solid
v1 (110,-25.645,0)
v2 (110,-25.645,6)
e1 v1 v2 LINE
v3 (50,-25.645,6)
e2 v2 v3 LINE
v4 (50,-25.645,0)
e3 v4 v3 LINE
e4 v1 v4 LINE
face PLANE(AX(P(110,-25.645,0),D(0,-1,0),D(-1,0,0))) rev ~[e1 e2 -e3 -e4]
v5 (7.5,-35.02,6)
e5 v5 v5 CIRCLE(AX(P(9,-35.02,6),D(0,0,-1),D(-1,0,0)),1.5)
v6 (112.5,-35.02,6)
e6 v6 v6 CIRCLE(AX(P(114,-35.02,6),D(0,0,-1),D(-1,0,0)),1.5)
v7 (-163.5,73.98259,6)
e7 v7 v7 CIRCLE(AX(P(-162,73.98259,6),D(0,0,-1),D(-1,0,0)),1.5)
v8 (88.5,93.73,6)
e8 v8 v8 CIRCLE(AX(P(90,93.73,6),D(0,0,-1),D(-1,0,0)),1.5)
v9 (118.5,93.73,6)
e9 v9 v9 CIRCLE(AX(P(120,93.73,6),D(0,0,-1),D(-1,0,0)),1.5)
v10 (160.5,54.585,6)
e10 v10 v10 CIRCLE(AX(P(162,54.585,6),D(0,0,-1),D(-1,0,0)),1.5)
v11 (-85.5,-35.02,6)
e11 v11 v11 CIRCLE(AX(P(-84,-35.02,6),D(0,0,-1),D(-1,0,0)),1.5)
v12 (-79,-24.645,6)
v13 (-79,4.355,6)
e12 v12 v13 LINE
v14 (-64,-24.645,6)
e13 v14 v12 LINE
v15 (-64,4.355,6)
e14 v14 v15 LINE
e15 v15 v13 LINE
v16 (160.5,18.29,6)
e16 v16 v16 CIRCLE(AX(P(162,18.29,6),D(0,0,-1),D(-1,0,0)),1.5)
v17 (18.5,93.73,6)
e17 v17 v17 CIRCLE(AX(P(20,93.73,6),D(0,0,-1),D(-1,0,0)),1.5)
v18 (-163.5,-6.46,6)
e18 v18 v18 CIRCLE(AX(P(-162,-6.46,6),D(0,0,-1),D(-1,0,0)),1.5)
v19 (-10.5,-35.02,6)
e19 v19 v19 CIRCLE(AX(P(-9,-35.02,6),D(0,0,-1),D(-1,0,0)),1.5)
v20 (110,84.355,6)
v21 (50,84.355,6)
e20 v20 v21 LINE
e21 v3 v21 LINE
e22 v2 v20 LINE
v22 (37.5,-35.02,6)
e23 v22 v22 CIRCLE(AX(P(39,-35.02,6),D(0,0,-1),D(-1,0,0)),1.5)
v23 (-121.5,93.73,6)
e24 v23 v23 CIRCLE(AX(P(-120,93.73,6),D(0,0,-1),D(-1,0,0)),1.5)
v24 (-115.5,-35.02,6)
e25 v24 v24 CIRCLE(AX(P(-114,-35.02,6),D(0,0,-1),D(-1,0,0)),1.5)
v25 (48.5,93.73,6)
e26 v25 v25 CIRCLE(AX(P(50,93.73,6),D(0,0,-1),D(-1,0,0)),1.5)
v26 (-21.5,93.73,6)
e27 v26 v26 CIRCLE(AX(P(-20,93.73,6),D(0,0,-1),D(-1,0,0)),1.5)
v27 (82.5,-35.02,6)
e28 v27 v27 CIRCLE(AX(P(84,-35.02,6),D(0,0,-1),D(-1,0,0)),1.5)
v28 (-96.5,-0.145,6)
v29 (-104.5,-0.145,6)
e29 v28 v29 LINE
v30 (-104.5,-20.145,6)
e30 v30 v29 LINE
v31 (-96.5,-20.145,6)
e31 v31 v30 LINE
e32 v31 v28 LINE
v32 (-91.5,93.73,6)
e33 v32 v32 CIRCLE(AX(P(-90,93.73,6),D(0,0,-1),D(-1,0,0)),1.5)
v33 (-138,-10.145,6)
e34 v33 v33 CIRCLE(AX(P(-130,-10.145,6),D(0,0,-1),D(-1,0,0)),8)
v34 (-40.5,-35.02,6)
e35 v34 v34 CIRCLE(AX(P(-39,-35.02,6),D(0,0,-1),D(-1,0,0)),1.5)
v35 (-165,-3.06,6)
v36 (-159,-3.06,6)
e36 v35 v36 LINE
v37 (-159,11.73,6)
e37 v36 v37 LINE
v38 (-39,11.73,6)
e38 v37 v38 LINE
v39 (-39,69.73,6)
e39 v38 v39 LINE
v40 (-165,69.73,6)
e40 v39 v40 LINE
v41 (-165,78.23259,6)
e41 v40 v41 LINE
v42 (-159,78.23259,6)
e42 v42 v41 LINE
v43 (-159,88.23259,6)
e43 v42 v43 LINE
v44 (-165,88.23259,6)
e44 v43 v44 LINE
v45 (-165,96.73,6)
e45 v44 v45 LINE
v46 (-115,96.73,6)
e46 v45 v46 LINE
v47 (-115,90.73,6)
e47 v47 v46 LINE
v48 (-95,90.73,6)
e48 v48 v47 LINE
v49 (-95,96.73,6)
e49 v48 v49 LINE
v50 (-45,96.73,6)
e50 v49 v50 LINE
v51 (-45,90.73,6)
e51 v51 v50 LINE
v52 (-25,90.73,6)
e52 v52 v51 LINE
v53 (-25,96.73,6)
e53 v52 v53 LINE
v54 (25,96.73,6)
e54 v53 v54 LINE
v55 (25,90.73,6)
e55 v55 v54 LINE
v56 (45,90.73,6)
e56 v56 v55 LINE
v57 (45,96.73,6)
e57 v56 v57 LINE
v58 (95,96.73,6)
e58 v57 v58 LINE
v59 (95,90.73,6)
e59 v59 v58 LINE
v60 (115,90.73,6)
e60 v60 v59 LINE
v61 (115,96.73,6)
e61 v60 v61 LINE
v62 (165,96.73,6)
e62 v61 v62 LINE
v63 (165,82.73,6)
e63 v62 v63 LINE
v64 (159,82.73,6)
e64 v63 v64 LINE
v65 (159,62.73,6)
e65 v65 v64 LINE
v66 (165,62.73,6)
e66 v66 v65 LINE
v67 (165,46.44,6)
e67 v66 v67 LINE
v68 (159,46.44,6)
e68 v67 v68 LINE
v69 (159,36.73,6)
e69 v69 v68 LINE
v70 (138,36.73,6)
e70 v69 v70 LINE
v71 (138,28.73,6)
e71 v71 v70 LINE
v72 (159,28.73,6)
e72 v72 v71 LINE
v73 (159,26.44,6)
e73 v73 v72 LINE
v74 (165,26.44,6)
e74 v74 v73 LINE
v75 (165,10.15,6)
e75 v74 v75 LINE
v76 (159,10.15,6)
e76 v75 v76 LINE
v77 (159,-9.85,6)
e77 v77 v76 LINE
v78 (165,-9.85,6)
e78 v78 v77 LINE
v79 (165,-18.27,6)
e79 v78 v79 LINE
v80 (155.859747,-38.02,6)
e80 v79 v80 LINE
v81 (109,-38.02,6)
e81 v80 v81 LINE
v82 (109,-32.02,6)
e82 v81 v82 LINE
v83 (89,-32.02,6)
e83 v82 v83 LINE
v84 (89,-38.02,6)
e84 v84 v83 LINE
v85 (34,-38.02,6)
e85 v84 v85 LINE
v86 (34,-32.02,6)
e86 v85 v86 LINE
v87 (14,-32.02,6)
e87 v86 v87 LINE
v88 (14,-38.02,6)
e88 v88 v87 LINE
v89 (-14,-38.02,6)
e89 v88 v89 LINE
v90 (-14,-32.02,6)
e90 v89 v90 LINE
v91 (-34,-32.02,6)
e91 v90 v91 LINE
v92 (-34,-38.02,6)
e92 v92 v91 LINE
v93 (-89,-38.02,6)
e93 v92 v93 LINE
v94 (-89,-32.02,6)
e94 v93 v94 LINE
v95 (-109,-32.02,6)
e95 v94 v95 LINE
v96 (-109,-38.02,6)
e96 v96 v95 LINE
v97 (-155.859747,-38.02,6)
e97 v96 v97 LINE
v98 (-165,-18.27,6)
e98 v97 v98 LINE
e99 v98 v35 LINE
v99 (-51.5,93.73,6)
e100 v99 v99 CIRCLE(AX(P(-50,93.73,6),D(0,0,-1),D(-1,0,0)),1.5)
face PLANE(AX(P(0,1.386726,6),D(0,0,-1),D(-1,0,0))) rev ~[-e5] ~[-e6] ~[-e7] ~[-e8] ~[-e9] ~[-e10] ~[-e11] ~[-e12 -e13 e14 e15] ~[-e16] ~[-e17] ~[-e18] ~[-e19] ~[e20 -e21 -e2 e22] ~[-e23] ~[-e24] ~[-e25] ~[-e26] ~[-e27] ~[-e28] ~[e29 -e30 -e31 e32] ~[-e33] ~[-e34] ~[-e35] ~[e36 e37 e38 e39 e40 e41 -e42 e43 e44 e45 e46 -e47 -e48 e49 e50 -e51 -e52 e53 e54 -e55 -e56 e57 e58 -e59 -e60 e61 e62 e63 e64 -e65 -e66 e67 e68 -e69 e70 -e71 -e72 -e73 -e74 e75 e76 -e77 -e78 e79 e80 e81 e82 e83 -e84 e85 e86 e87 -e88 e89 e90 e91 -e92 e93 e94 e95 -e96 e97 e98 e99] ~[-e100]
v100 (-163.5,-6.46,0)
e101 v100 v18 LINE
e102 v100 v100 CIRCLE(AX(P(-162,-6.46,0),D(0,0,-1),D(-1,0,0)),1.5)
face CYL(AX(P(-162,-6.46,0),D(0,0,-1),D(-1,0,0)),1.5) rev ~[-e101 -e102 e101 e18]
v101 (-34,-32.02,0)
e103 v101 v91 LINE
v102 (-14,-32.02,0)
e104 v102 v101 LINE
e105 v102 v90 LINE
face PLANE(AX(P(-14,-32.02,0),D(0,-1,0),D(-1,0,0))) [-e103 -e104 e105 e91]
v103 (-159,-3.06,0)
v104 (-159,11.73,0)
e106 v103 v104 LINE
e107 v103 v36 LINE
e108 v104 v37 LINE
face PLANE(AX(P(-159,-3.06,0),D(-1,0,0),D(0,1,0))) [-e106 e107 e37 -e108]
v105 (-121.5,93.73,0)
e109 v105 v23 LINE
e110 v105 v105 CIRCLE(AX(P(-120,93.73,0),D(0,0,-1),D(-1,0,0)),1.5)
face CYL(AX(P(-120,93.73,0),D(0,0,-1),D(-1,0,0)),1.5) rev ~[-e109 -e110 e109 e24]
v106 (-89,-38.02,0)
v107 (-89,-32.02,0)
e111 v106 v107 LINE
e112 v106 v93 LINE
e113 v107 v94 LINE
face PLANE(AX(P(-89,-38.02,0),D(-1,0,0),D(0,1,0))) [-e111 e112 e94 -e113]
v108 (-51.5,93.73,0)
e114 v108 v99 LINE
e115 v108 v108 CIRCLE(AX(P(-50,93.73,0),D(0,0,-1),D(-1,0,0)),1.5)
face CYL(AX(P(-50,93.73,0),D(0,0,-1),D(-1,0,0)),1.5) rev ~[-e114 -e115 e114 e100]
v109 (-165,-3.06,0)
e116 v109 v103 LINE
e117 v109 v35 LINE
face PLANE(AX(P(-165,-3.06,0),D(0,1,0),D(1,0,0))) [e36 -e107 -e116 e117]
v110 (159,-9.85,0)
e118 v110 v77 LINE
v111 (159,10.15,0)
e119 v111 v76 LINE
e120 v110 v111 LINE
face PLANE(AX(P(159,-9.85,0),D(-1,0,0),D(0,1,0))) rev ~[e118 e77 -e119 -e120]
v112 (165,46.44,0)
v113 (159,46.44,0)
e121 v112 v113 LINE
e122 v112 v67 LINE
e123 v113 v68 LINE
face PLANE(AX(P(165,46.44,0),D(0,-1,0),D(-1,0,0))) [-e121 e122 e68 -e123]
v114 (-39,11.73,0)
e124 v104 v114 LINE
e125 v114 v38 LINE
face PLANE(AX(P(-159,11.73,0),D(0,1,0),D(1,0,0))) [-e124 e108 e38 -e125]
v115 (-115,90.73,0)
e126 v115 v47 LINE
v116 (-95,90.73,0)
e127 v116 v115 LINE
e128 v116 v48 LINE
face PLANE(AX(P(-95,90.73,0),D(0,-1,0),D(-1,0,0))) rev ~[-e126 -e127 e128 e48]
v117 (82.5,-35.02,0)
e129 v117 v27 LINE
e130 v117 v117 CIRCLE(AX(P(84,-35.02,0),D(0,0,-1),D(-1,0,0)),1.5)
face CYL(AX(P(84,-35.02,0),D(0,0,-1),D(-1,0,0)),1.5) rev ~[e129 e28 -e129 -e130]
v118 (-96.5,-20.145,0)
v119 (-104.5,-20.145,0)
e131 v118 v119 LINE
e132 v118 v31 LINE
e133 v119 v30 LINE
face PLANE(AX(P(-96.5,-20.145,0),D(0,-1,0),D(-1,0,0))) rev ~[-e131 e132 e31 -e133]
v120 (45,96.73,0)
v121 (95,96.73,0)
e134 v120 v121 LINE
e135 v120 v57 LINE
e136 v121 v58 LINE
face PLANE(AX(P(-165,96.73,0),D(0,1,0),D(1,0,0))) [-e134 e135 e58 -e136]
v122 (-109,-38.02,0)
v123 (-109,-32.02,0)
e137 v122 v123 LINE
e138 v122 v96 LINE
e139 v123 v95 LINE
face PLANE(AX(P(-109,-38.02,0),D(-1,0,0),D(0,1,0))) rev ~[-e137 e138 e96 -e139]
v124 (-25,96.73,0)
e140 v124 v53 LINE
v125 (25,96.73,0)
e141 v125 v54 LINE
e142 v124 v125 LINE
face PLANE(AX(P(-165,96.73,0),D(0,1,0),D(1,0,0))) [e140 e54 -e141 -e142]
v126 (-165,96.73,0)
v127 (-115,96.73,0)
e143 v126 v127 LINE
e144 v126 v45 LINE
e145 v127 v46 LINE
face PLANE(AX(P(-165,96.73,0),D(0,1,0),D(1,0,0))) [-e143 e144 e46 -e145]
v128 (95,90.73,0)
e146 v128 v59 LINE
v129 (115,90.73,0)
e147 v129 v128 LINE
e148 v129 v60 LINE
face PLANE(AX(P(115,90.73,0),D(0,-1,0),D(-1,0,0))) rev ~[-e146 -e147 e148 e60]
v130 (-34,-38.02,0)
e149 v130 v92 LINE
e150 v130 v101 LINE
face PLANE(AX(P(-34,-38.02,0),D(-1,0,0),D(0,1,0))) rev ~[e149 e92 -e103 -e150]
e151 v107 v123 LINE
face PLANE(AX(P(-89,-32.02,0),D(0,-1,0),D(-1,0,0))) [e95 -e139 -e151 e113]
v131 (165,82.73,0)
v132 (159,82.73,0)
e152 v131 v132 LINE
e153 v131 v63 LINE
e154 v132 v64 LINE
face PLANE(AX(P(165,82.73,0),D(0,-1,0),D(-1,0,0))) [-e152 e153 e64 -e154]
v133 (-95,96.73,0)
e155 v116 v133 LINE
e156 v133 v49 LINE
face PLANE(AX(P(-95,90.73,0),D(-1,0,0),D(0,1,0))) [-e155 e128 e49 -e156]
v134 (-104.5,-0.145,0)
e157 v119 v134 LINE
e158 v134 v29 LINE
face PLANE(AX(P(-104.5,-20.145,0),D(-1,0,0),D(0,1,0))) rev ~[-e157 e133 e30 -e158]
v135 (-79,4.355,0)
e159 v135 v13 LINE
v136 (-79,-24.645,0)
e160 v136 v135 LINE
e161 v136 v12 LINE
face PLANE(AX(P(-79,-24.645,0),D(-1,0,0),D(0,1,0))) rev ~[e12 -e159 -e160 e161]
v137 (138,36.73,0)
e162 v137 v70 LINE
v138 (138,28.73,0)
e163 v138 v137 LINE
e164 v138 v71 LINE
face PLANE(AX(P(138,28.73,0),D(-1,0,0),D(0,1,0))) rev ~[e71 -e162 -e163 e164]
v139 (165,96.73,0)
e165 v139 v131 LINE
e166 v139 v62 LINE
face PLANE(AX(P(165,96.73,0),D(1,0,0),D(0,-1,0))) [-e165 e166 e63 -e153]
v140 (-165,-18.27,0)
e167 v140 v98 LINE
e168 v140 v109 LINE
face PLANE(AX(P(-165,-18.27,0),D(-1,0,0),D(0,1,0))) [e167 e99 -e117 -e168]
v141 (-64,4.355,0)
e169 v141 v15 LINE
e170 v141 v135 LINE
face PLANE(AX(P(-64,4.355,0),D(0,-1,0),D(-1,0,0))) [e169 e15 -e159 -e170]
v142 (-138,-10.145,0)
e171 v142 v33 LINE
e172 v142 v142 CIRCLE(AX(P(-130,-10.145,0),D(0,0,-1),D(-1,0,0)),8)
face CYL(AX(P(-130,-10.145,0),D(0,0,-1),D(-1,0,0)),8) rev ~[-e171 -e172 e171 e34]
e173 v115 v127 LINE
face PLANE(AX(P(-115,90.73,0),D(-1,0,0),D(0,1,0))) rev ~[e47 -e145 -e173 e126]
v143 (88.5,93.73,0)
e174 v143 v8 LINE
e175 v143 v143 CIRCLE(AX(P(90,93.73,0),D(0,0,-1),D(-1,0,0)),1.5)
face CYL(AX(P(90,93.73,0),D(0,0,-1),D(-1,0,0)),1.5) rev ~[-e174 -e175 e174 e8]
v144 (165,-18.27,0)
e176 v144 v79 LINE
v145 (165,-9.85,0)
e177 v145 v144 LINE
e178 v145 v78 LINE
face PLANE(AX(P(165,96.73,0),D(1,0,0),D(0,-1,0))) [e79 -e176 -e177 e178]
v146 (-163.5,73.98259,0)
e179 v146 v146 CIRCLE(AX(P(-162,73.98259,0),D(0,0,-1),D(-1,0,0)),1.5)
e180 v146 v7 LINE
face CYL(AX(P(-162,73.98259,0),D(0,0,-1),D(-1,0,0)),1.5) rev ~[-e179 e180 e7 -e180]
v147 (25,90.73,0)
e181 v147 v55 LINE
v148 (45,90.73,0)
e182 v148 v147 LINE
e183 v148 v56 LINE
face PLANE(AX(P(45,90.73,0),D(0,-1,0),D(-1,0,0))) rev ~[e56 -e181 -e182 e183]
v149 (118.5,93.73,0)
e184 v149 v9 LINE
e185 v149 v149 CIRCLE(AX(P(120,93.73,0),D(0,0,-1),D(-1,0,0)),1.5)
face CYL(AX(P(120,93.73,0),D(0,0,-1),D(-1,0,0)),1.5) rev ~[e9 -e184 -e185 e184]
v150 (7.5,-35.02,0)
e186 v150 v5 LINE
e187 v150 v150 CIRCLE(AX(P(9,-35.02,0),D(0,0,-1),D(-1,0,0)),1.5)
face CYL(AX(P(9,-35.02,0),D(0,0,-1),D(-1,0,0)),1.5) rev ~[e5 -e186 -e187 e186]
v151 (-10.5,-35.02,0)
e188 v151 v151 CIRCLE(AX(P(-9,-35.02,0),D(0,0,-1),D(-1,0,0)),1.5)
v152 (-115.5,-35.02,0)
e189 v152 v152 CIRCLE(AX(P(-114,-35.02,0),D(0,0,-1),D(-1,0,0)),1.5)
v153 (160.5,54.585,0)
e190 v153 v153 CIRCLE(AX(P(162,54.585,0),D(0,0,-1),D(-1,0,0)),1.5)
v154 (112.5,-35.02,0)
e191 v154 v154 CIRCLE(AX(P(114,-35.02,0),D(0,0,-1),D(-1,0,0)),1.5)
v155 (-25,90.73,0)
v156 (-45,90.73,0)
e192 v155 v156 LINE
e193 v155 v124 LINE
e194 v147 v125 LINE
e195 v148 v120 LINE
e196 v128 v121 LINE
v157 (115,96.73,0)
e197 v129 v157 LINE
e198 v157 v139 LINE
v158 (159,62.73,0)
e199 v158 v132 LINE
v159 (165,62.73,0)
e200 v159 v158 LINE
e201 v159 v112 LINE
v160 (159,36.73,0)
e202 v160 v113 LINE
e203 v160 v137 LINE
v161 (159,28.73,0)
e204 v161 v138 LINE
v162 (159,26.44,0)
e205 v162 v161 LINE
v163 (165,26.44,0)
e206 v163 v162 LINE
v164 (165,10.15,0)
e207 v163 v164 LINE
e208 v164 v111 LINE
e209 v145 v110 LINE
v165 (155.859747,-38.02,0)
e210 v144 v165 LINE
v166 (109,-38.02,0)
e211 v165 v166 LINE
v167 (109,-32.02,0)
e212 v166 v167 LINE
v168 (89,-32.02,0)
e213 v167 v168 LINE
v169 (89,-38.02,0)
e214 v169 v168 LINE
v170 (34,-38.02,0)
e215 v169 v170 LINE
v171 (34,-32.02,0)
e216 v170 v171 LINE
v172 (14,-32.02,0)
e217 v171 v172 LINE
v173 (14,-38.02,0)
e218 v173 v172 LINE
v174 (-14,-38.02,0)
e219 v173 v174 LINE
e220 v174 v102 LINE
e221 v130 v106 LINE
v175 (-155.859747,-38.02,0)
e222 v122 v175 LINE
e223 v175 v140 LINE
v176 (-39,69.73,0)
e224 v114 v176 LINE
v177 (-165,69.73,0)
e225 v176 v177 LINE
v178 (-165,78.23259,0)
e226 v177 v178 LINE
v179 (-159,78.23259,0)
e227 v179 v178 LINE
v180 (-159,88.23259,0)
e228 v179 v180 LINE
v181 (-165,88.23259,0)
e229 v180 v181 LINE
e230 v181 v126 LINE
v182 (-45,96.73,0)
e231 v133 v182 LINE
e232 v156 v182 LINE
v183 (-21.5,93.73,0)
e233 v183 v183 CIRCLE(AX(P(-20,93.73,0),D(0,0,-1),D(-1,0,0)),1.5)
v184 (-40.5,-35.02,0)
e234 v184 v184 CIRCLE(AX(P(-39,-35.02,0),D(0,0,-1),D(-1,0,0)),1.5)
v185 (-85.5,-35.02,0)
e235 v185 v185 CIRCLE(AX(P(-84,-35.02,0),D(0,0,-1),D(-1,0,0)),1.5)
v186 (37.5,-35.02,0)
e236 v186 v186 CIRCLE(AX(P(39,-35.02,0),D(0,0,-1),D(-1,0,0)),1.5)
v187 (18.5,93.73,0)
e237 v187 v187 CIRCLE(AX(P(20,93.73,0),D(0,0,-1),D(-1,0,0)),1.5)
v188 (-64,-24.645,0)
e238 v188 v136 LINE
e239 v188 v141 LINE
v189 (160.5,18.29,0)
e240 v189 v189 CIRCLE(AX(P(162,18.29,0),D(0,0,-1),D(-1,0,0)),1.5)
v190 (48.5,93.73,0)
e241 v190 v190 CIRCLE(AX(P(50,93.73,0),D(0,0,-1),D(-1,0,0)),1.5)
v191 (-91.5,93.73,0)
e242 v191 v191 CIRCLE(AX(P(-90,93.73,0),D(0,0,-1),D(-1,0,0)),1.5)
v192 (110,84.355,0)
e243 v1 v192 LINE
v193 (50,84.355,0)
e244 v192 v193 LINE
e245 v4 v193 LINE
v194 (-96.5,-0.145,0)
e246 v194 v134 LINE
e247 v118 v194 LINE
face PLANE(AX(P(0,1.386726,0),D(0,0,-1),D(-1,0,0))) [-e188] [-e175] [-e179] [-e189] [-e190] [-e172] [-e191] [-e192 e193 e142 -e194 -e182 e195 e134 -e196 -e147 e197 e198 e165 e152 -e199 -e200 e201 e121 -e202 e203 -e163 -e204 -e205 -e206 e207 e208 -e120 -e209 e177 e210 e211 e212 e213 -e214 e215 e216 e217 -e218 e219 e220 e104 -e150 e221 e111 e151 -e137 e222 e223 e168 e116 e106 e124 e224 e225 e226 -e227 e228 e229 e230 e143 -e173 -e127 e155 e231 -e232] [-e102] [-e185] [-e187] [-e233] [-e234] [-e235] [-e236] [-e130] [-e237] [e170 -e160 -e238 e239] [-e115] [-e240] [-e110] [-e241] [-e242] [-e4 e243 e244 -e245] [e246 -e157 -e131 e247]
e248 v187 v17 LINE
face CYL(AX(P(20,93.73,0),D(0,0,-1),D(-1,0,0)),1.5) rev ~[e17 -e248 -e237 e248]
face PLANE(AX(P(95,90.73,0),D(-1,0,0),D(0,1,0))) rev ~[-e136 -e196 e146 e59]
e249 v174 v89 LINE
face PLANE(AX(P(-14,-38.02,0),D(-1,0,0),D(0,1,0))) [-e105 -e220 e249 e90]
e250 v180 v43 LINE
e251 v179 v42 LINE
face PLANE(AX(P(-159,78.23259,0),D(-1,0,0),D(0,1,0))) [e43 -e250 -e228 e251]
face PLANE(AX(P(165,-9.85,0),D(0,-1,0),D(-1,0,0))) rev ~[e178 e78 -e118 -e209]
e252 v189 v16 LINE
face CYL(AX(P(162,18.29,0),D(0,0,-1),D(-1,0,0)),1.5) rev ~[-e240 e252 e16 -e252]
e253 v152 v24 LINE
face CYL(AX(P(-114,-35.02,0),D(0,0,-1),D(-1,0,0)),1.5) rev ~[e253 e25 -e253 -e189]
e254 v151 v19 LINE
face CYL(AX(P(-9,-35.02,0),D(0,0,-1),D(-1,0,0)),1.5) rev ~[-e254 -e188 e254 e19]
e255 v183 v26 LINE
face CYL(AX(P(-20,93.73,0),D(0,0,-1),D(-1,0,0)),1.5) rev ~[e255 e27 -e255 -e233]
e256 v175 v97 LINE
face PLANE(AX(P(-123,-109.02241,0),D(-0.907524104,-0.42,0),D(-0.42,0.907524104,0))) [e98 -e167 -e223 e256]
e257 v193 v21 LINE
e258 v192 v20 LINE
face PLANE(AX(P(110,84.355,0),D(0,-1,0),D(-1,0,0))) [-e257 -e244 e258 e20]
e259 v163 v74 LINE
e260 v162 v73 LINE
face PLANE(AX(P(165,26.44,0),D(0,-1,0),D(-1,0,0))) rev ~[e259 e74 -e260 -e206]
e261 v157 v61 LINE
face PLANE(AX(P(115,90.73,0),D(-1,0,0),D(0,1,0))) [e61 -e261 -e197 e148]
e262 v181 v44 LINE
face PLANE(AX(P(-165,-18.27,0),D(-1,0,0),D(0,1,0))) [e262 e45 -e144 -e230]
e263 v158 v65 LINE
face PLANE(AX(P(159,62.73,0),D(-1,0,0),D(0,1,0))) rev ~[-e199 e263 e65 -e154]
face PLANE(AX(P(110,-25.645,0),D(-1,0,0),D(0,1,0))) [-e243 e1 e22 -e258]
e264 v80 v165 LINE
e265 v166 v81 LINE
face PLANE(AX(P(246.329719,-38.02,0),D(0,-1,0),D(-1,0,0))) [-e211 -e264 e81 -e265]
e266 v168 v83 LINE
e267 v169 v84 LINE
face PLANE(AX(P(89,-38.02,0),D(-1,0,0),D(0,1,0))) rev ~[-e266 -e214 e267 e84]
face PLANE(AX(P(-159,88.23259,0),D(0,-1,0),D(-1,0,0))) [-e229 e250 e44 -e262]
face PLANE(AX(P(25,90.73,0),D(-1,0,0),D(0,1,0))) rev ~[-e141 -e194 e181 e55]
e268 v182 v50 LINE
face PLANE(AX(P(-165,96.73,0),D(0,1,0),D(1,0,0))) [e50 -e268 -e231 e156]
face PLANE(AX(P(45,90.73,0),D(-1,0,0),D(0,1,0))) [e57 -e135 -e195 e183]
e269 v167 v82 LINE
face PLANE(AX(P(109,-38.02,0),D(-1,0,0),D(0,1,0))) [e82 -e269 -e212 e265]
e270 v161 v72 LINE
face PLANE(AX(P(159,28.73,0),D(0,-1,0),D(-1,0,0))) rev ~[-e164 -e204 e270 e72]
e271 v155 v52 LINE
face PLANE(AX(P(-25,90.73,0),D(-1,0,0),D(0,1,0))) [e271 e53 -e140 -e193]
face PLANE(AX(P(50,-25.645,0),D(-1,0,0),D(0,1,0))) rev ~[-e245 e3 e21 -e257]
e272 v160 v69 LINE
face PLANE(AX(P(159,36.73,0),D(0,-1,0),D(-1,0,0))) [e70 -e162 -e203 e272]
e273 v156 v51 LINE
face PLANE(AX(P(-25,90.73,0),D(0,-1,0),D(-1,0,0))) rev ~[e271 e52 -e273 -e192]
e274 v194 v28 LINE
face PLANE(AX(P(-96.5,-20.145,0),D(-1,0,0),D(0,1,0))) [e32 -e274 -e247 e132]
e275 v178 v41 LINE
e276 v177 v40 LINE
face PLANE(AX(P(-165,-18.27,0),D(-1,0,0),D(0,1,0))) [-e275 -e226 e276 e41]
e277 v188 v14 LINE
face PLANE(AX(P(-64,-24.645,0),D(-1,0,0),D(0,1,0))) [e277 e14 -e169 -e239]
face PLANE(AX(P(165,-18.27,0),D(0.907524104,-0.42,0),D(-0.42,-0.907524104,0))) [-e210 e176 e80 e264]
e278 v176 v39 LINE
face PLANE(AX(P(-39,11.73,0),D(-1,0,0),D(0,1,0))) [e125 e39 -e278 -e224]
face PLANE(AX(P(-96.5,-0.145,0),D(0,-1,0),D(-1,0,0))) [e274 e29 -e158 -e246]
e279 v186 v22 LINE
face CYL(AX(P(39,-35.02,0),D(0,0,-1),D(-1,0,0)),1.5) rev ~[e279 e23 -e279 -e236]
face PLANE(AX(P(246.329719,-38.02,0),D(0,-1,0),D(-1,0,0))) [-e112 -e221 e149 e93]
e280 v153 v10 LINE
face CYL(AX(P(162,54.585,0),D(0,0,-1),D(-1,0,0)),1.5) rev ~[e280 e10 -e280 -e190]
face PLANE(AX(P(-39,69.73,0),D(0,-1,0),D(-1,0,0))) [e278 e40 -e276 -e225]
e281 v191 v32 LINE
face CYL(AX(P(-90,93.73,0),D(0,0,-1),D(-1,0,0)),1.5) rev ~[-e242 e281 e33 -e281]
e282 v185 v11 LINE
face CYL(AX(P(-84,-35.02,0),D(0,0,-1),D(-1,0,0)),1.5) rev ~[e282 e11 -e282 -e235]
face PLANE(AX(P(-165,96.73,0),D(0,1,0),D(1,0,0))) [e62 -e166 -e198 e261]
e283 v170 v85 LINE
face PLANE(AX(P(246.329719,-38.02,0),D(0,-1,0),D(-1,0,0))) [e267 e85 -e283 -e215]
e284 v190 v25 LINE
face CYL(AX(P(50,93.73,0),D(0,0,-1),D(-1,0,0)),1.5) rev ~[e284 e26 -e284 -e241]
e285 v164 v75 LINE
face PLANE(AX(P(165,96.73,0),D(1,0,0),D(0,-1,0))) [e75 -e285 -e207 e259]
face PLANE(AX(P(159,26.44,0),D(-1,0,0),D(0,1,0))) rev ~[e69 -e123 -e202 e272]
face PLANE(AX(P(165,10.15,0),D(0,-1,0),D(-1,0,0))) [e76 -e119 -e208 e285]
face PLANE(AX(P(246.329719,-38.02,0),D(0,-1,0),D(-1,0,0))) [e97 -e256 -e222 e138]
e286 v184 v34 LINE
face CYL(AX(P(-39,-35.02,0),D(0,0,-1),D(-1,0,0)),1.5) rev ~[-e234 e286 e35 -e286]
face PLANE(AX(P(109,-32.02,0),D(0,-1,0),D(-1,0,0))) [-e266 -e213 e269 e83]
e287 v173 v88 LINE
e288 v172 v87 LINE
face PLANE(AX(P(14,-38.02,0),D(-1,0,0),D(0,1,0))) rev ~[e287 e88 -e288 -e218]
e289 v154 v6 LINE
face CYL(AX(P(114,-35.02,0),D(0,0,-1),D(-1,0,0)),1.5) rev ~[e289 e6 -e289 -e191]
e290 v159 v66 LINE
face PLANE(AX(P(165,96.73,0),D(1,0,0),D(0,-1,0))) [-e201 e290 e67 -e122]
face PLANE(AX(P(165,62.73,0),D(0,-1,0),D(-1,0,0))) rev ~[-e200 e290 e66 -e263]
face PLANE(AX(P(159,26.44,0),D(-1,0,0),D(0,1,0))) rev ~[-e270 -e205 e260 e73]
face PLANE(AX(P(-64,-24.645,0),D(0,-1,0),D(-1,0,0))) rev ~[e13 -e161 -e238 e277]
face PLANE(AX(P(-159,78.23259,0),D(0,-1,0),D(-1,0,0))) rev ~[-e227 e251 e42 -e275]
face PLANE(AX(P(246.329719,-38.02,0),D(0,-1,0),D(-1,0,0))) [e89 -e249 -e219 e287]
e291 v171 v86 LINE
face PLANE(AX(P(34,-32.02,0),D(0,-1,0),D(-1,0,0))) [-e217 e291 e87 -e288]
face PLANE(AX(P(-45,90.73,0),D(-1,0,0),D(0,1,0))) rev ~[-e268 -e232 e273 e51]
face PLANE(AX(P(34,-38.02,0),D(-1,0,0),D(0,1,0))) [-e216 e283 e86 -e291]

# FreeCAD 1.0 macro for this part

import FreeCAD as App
import Part
import Sketcher
from FreeCAD import Vector
Q = App.Units.Quantity

doc = App.newDocument("Part")
body = doc.addObject("PartDesign::Body", "Body")

sketch1 = doc.addObject("Sketcher::SketchObject", "Sketch")
body.addObject(sketch1)
sketch1.AttachmentSupport = (doc.XY_Plane, [""])
sketch1.MapMode = "FlatFace"
sketch1.addGeometry([
    Part.LineSegment(Vector(165, 96.73, 0), Vector(-165, 96.73, 0)),
    Part.LineSegment(Vector(-165, 96.73, 0), Vector(-165, -18.27, 0)),
    Part.LineSegment(Vector(-165, -18.27, 0), Vector(-123, -109.02241, 0)),
    Part.LineSegment(Vector(-123, -109.02241, 0), Vector(123, -109.02241, 0)),
    Part.LineSegment(Vector(123, -109.02241, 0), Vector(165, -18.27, 0)),
    Part.LineSegment(Vector(165, -18.27, 0), Vector(165, 96.73, 0)),
], False)
sketch1.addConstraint([
    Sketcher.Constraint("Coincident", 0, 2, 1, 1),
    Sketcher.Constraint("Coincident", 1, 2, 2, 1),
    Sketcher.Constraint("Coincident", 2, 2, 3, 1),
    Sketcher.Constraint("Coincident", 3, 2, 4, 1),
    Sketcher.Constraint("Coincident", 4, 2, 5, 1),
    Sketcher.Constraint("Coincident", 5, 2, 0, 1),
    Sketcher.Constraint("Horizontal", 0),
    Sketcher.Constraint("Vertical", 1),
    Sketcher.Constraint("Horizontal", 3),
    Sketcher.Constraint("Vertical", 5),
    Sketcher.Constraint("Symmetric", 1, 2, 4, 2, -2),
    Sketcher.Constraint("Equal", 2, 4),
    Sketcher.Constraint("DistanceX", 0, 2, 0, 1, Q("330 mm")),
    Sketcher.Constraint("DistanceX", 3, 1, 3, 2, Q("246 mm")),
    Sketcher.Constraint("DistanceY", 1, 2, 1, 1, Q("115 mm")),
    Sketcher.Constraint("Distance", 2, Q("100 mm")),
    Sketcher.Constraint("DistanceY", -1, 1, 0, 2, Q("96.73 mm")),
])
pad1 = doc.addObject("PartDesign::Pad", "Pad")
body.addObject(pad1)
pad1.Profile = sketch1
pad1.Length = 6

sketch2 = doc.addObject("Sketcher::SketchObject", "Sketch001")
body.addObject(sketch2)
sketch2.AttachmentSupport = (doc.XY_Plane, [""])
sketch2.MapMode = "FlatFace"
sketch2.addGeometry([
    Part.Circle(Vector(-130, -10.145, 0), Vector(0, 0, 1), 8),
    Part.LineSegment(Vector(-159, -3.06, 0), Vector(-165, -3.06, 0)),
    Part.LineSegment(Vector(-165, -3.06, 0), Vector(-165, 69.73, 0)),
    Part.LineSegment(Vector(-165, 69.73, 0), Vector(-39, 69.73, 0)),
    Part.LineSegment(Vector(-39, 69.73, 0), Vector(-39, 11.73, 0)),
    Part.LineSegment(Vector(-39, 11.73, 0), Vector(-159, 11.73, 0)),
    Part.LineSegment(Vector(-159, 11.73, 0), Vector(-159, -3.06, 0)),
    Part.LineSegment(Vector(-159, 88.23259, 0), Vector(-159, 78.23259, 0)),
    Part.LineSegment(Vector(-159, 78.23259, 0), Vector(-165, 78.23259, 0)),
    Part.LineSegment(Vector(-165, 78.23259, 0), Vector(-165, 88.23259, 0)),
    Part.LineSegment(Vector(-165, 88.23259, 0), Vector(-159, 88.23259, 0)),
    Part.LineSegment(Vector(34, -32.02, 0), Vector(34, -38.02, 0)),
    Part.LineSegment(Vector(34, -38.02, 0), Vector(14, -38.02, 0)),
    Part.LineSegment(Vector(14, -38.02, 0), Vector(14, -32.02, 0)),
    Part.LineSegment(Vector(14, -32.02, 0), Vector(34, -32.02, 0)),
    Part.LineSegment(Vector(-89, -32.02, 0), Vector(-89, -38.02, 0)),
    Part.LineSegment(Vector(-89, -38.02, 0), Vector(-109, -38.02, 0)),
    Part.LineSegment(Vector(-109, -38.02, 0), Vector(-109, -32.02, 0)),
    Part.LineSegment(Vector(-109, -32.02, 0), Vector(-89, -32.02, 0)),
    Part.LineSegment(Vector(110, 84.355, 0), Vector(110, -25.645, 0)),
    Part.LineSegment(Vector(110, -25.645, 0), Vector(50, -25.645, 0)),
    Part.LineSegment(Vector(50, -25.645, 0), Vector(50, 84.355, 0)),
    Part.LineSegment(Vector(50, 84.355, 0), Vector(110, 84.355, 0)),
    Part.LineSegment(Vector(165, 82.73, 0), Vector(165, 62.73, 0)),
    Part.LineSegment(Vector(165, 62.73, 0), Vector(159, 62.73, 0)),
    Part.LineSegment(Vector(159, 62.73, 0), Vector(159, 82.73, 0)),
    Part.LineSegment(Vector(159, 82.73, 0), Vector(165, 82.73, 0)),
    Part.LineSegment(Vector(-14, -32.02, 0), Vector(-14, -38.02, 0)),
    Part.LineSegment(Vector(-14, -38.02, 0), Vector(-34, -38.02, 0)),
    Part.LineSegment(Vector(-34, -38.02, 0), Vector(-34, -32.02, 0)),
    Part.LineSegment(Vector(-34, -32.02, 0), Vector(-14, -32.02, 0)),
    Part.LineSegment(Vector(165, 46.44, 0), Vector(165, 26.44, 0)),
    Part.LineSegment(Vector(165, 26.44, 0), Vector(159, 26.44, 0)),
    Part.LineSegment(Vector(159, 26.44, 0), Vector(159, 46.44, 0)),
    Part.LineSegment(Vector(159, 46.44, 0), Vector(165, 46.44, 0)),
    Part.LineSegment(Vector(165, 10.15, 0), Vector(165, -9.85, 0)),
    Part.LineSegment(Vector(165, -9.85, 0), Vector(159, -9.85, 0)),
    Part.LineSegment(Vector(159, -9.85, 0), Vector(159, 10.15, 0)),
    Part.LineSegment(Vector(159, 10.15, 0), Vector(165, 10.15, 0)),
    Part.LineSegment(Vector(-95, 96.73, 0), Vector(-95, 90.73, 0)),
    Part.LineSegment(Vector(-95, 90.73, 0), Vector(-115, 90.73, 0)),
    Part.LineSegment(Vector(-115, 90.73, 0), Vector(-115, 96.73, 0)),
    Part.LineSegment(Vector(-115, 96.73, 0), Vector(-95, 96.73, 0)),
    Part.LineSegment(Vector(45, 96.73, 0), Vector(45, 90.73, 0)),
    Part.LineSegment(Vector(45, 90.73, 0), Vector(25, 90.73, 0)),
    Part.LineSegment(Vector(25, 90.73, 0), Vector(25, 96.73, 0)),
    Part.LineSegment(Vector(25, 96.73, 0), Vector(45, 96.73, 0)),
    Part.LineSegment(Vector(-25, 96.73, 0), Vector(-25, 90.73, 0)),
    Part.LineSegment(Vector(-25, 90.73, 0), Vector(-45, 90.73, 0)),
    Part.LineSegment(Vector(-45, 90.73, 0), Vector(-45, 96.73, 0)),
    Part.LineSegment(Vector(-45, 96.73, 0), Vector(-25, 96.73, 0)),
    Part.LineSegment(Vector(115, 96.73, 0), Vector(115, 90.73, 0)),
    Part.LineSegment(Vector(115, 90.73, 0), Vector(95, 90.73, 0)),
    Part.LineSegment(Vector(95, 90.73, 0), Vector(95, 96.73, 0)),
    Part.LineSegment(Vector(95, 96.73, 0), Vector(115, 96.73, 0)),
    Part.LineSegment(Vector(-96.5, -0.145, 0), Vector(-96.5, -20.145, 0)),
    Part.LineSegment(Vector(-96.5, -20.145, 0), Vector(-104.5, -20.145, 0)),
    Part.LineSegment(Vector(-104.5, -20.145, 0), Vector(-104.5, -0.145, 0)),
    Part.LineSegment(Vector(-104.5, -0.145, 0), Vector(-96.5, -0.145, 0)),
    Part.LineSegment(Vector(109, -32.02, 0), Vector(109, -38.02, 0)),
    Part.LineSegment(Vector(109, -38.02, 0), Vector(89, -38.02, 0)),
    Part.LineSegment(Vector(89, -38.02, 0), Vector(89, -32.02, 0)),
    Part.LineSegment(Vector(89, -32.02, 0), Vector(109, -32.02, 0)),
    Part.LineSegment(Vector(-64, 4.355, 0), Vector(-64, -24.645, 0)),
    Part.LineSegment(Vector(-64, -24.645, 0), Vector(-79, -24.645, 0)),
    Part.LineSegment(Vector(-79, -24.645, 0), Vector(-79, 4.355, 0)),
    Part.LineSegment(Vector(-79, 4.355, 0), Vector(-64, 4.355, 0)),
], False)
sketch2.addConstraint([
    Sketcher.Constraint("Coincident", 1, 2, 2, 1),
    Sketcher.Constraint("Coincident", 2, 2, 3, 1),
    Sketcher.Constraint("Coincident", 3, 2, 4, 1),
    Sketcher.Constraint("Coincident", 4, 2, 5, 1),
    Sketcher.Constraint("Coincident", 5, 2, 6, 1),
    Sketcher.Constraint("Coincident", 6, 2, 1, 1),
    Sketcher.Constraint("Coincident", 7, 2, 8, 1),
    Sketcher.Constraint("Coincident", 8, 2, 9, 1),
    Sketcher.Constraint("Coincident", 9, 2, 10, 1),
    Sketcher.Constraint("Coincident", 10, 2, 7, 1),
    Sketcher.Constraint("Coincident", 11, 2, 12, 1),
    Sketcher.Constraint("Coincident", 12, 2, 13, 1),
    Sketcher.Constraint("Coincident", 13, 2, 14, 1),
    Sketcher.Constraint("Coincident", 14, 2, 11, 1),
    Sketcher.Constraint("Coincident", 15, 2, 16, 1),
    Sketcher.Constraint("Coincident", 16, 2, 17, 1),
    Sketcher.Constraint("Coincident", 17, 2, 18, 1),
    Sketcher.Constraint("Coincident", 18, 2, 15, 1),
    Sketcher.Constraint("Coincident", 19, 2, 20, 1),
    Sketcher.Constraint("Coincident", 20, 2, 21, 1),
    Sketcher.Constraint("Coincident", 21, 2, 22, 1),
    Sketcher.Constraint("Coincident", 22, 2, 19, 1),
    Sketcher.Constraint("Coincident", 23, 2, 24, 1),
    Sketcher.Constraint("Coincident", 24, 2, 25, 1),
    Sketcher.Constraint("Coincident", 25, 2, 26, 1),
    Sketcher.Constraint("Coincident", 26, 2, 23, 1),
    Sketcher.Constraint("Coincident", 27, 2, 28, 1),
    Sketcher.Constraint("Coincident", 28, 2, 29, 1),
    Sketcher.Constraint("Coincident", 29, 2, 30, 1),
    Sketcher.Constraint("Coincident", 30, 2, 27, 1),
    Sketcher.Constraint("Coincident", 31, 2, 32, 1),
    Sketcher.Constraint("Coincident", 32, 2, 33, 1),
    Sketcher.Constraint("Coincident", 33, 2, 34, 1),
    Sketcher.Constraint("Coincident", 34, 2, 31, 1),
    Sketcher.Constraint("Coincident", 35, 2, 36, 1),
    Sketcher.Constraint("Coincident", 36, 2, 37, 1),
    Sketcher.Constraint("Coincident", 37, 2, 38, 1),
    Sketcher.Constraint("Coincident", 38, 2, 35, 1),
    Sketcher.Constraint("Coincident", 39, 2, 40, 1),
    Sketcher.Constraint("Coincident", 40, 2, 41, 1),
    Sketcher.Constraint("Coincident", 41, 2, 42, 1),
    Sketcher.Constraint("Coincident", 42, 2, 39, 1),
    Sketcher.Constraint("Coincident", 43, 2, 44, 1),
    Sketcher.Constraint("Coincident", 44, 2, 45, 1),
    Sketcher.Constraint("Coincident", 45, 2, 46, 1),
    Sketcher.Constraint("Coincident", 46, 2, 43, 1),
    Sketcher.Constraint("Coincident", 47, 2, 48, 1),
    Sketcher.Constraint("Coincident", 48, 2, 49, 1),
    Sketcher.Constraint("Coincident", 49, 2, 50, 1),
    Sketcher.Constraint("Coincident", 50, 2, 47, 1),
    Sketcher.Constraint("Coincident", 51, 2, 52, 1),
    Sketcher.Constraint("Coincident", 52, 2, 53, 1),
    Sketcher.Constraint("Coincident", 53, 2, 54, 1),
    Sketcher.Constraint("Coincident", 54, 2, 51, 1),
    Sketcher.Constraint("Coincident", 55, 2, 56, 1),
    Sketcher.Constraint("Coincident", 56, 2, 57, 1),
    Sketcher.Constraint("Coincident", 57, 2, 58, 1),
    Sketcher.Constraint("Coincident", 58, 2, 55, 1),
    Sketcher.Constraint("Coincident", 59, 2, 60, 1),
    Sketcher.Constraint("Coincident", 60, 2, 61, 1),
    Sketcher.Constraint("Coincident", 61, 2, 62, 1),
    Sketcher.Constraint("Coincident", 62, 2, 59, 1),
    Sketcher.Constraint("Coincident", 63, 2, 64, 1),
    Sketcher.Constraint("Coincident", 64, 2, 65, 1),
    Sketcher.Constraint("Coincident", 65, 2, 66, 1),
    Sketcher.Constraint("Coincident", 66, 2, 63, 1),
    Sketcher.Constraint("Horizontal", 1),
    Sketcher.Constraint("Vertical", 2),
    Sketcher.Constraint("Horizontal", 3),
    Sketcher.Constraint("Vertical", 4),
    Sketcher.Constraint("Horizontal", 5),
    Sketcher.Constraint("Vertical", 6),
    Sketcher.Constraint("Vertical", 7),
    Sketcher.Constraint("Horizontal", 8),
    Sketcher.Constraint("Vertical", 9),
    Sketcher.Constraint("Horizontal", 10),
    Sketcher.Constraint("Vertical", 11),
    Sketcher.Constraint("Horizontal", 12),
    Sketcher.Constraint("Vertical", 13),
    Sketcher.Constraint("Horizontal", 14),
    Sketcher.Constraint("Vertical", 15),
    Sketcher.Constraint("Horizontal", 16),
    Sketcher.Constraint("Vertical", 17),
    Sketcher.Constraint("Horizontal", 18),
    Sketcher.Constraint("Vertical", 19),
    Sketcher.Constraint("Horizontal", 20),
    Sketcher.Constraint("Vertical", 21),
    Sketcher.Constraint("Horizontal", 22),
    Sketcher.Constraint("Vertical", 23),
    Sketcher.Constraint("Horizontal", 24),
    Sketcher.Constraint("Vertical", 25),
    Sketcher.Constraint("Horizontal", 26),
    Sketcher.Constraint("Vertical", 27),
    Sketcher.Constraint("Horizontal", 28),
    Sketcher.Constraint("Vertical", 29),
    Sketcher.Constraint("Horizontal", 30),
    Sketcher.Constraint("Vertical", 31),
    Sketcher.Constraint("Horizontal", 32),
    Sketcher.Constraint("Vertical", 33),
    Sketcher.Constraint("Horizontal", 34),
    Sketcher.Constraint("Vertical", 35),
    Sketcher.Constraint("Horizontal", 36),
    Sketcher.Constraint("Vertical", 37),
    Sketcher.Constraint("Horizontal", 38),
    Sketcher.Constraint("Vertical", 39),
    Sketcher.Constraint("Horizontal", 40),
    Sketcher.Constraint("Vertical", 41),
    Sketcher.Constraint("Horizontal", 42),
    Sketcher.Constraint("Vertical", 43),
    Sketcher.Constraint("Horizontal", 44),
    Sketcher.Constraint("Vertical", 45),
    Sketcher.Constraint("Horizontal", 46),
    Sketcher.Constraint("Vertical", 47),
    Sketcher.Constraint("Horizontal", 48),
    Sketcher.Constraint("Vertical", 49),
    Sketcher.Constraint("Horizontal", 50),
    Sketcher.Constraint("Vertical", 51),
    Sketcher.Constraint("Horizontal", 52),
    Sketcher.Constraint("Vertical", 53),
    Sketcher.Constraint("Horizontal", 54),
    Sketcher.Constraint("Vertical", 55),
    Sketcher.Constraint("Horizontal", 56),
    Sketcher.Constraint("Vertical", 57),
    Sketcher.Constraint("Horizontal", 58),
    Sketcher.Constraint("Vertical", 59),
    Sketcher.Constraint("Horizontal", 60),
    Sketcher.Constraint("Vertical", 61),
    Sketcher.Constraint("Horizontal", 62),
    Sketcher.Constraint("Vertical", 63),
    Sketcher.Constraint("Horizontal", 64),
    Sketcher.Constraint("Vertical", 65),
    Sketcher.Constraint("Horizontal", 66),
    Sketcher.Constraint("Symmetric", 12, 2, 27, 2, -2),
    Sketcher.Constraint("Symmetric", 14, 2, 29, 2, -2),
    Sketcher.Constraint("Symmetric", 44, 2, 47, 2, -2),
    Sketcher.Constraint("Symmetric", 46, 2, 49, 2, -2),
    Sketcher.Constraint("Symmetric", 40, 2, 51, 2, -2),
    Sketcher.Constraint("Symmetric", 42, 2, 53, 2, -2),
    Sketcher.Constraint("Symmetric", 16, 2, 59, 2, -2),
    Sketcher.Constraint("Symmetric", 18, 2, 61, 2, -2),
    Sketcher.Constraint("Horizontal", 12, 2, 15, 2),
    Sketcher.Constraint("Horizontal", 14, 2, 17, 2),
    Sketcher.Constraint("Horizontal", 40, 2, 43, 2),
    Sketcher.Constraint("Horizontal", 42, 2, 45, 2),
    Sketcher.Constraint("Vertical", 6, 2, 7, 2),
    Sketcher.Constraint("Vertical", 2, 2, 8, 2),
    Sketcher.Constraint("Vertical", 26, 2, 31, 2),
    Sketcher.Constraint("Vertical", 25, 2, 32, 2),
    Sketcher.Constraint("Vertical", 34, 2, 35, 2),
    Sketcher.Constraint("Vertical", 33, 2, 36, 2),
    Sketcher.Constraint("Equal", 14, 16),
    Sketcher.Constraint("Equal", 10, 24),
    Sketcher.Constraint("Equal", 30, 40),
    Sketcher.Constraint("Equal", 42, 44),
    Sketcher.Constraint("Equal", 38, 11),
    Sketcher.Constraint("Equal", 62, 23),
    Sketcher.Constraint("Equal", 25, 31),
    Sketcher.Constraint("Equal", 33, 35),
    Sketcher.Constraint("Equal", 29, 39),
    Sketcher.Constraint("Equal", 37, 55),
    Sketcher.Constraint("Diameter", 0, Q("16 mm")),
    Sketcher.Constraint("DistanceX", 1, 2, 1, 1, Q("6 mm")),
    Sketcher.Constraint("DistanceX", 3, 1, 3, 2, Q("126 mm")),
    Sketcher.Constraint("DistanceX", 12, 2, 12, 1, Q("20 mm")),
    Sketcher.Constraint("DistanceX", 20, 2, 20, 1, Q("60 mm")),
    Sketcher.Constraint("DistanceX", 56, 2, 56, 1, Q("8 mm")),
    Sketcher.Constraint("DistanceX", 64, 2, 64, 1, Q("15 mm")),
    Sketcher.Constraint("DistanceY", 4, 2, 4, 1, Q("58 mm")),
    Sketcher.Constraint("DistanceY", 7, 2, 7, 1, Q("10 mm")),
    Sketcher.Constraint("DistanceY", 19, 2, 19, 1, Q("110 mm")),
    Sketcher.Constraint("DistanceY", 63, 2, 63, 1, Q("29 mm")),
    Sketcher.Constraint("DistanceX", 0, 3, -1, 1, Q("130 mm")),
    Sketcher.Constraint("DistanceX", 1, 2, -1, 1, Q("165 mm")),
    Sketcher.Constraint("DistanceX", -1, 1, 11, 2, Q("34 mm")),
    Sketcher.Constraint("DistanceX", 15, 2, -1, 1, Q("89 mm")),
    Sketcher.Constraint("DistanceX", -1, 1, 19, 2, Q("110 mm")),
    Sketcher.Constraint("DistanceX", -1, 1, 23, 2, Q("165 mm")),
    Sketcher.Constraint("DistanceX", 39, 2, -1, 1, Q("95 mm")),
    Sketcher.Constraint("DistanceX", -1, 1, 43, 2, Q("45 mm")),
    Sketcher.Constraint("DistanceX", 63, 2, -1, 1, Q("64 mm")),
    Sketcher.Constraint("DistanceY", 2, 1, 2, 2, Q("72.79 mm")),
    Sketcher.Constraint("DistanceX", 55, 2, -1, 1, Q("96.5 mm")),
    Sketcher.Constraint("DistanceY", 1, 2, -1, 1, Q("3.06 mm")),
    Sketcher.Constraint("DistanceY", 11, 2, -1, 1, Q("38.02 mm")),
    Sketcher.Constraint("DistanceY", -1, 1, 23, 2, Q("62.73 mm")),
    Sketcher.Constraint("DistanceY", -1, 1, 31, 2, Q("26.44 mm")),
    Sketcher.Constraint("DistanceY", 35, 2, -1, 1, Q("9.85 mm")),
    Sketcher.Constraint("DistanceY", -1, 1, 39, 2, Q("90.73 mm")),
    Sketcher.Constraint("DistanceY", 0, 3, -1, 1, Q("10.145 mm")),
    Sketcher.Constraint("DistanceY", 19, 2, -1, 1, Q("25.645 mm")),
    Sketcher.Constraint("DistanceY", 55, 2, -1, 1, Q("20.145 mm")),
    Sketcher.Constraint("DistanceY", 63, 2, -1, 1, Q("24.645 mm")),
    Sketcher.Constraint("DistanceY", -1, 1, 7, 2, Q("78.23259 mm")),
])
pocket1 = doc.addObject("PartDesign::Pocket", "Pocket")
body.addObject(pocket1)
pocket1.Profile = sketch2
pocket1.Length = 6
pocket1.Reversed = True

sketch3 = doc.addObject("Sketcher::SketchObject", "Sketch002")
body.addObject(sketch3)
sketch3.AttachmentSupport = (doc.XY_Plane, [""])
sketch3.MapMode = "FlatFace"
sketch3.addGeometry([
    Part.Circle(Vector(-114, -35.02, 0), Vector(0, 0, 1), 1.5),
    Part.Circle(Vector(-162, 73.98259, 0), Vector(0, 0, 1), 1.5),
    Part.Circle(Vector(-84, -35.02, 0), Vector(0, 0, 1), 1.5),
    Part.Circle(Vector(-39, -35.02, 0), Vector(0, 0, 1), 1.5),
    Part.Circle(Vector(-162, -6.46, 0), Vector(0, 0, 1), 1.5),
    Part.Circle(Vector(-9, -35.02, 0), Vector(0, 0, 1), 1.5),
    Part.Circle(Vector(9, -35.02, 0), Vector(0, 0, 1), 1.5),
    Part.Circle(Vector(39, -35.02, 0), Vector(0, 0, 1), 1.5),
    Part.Circle(Vector(84, -35.02, 0), Vector(0, 0, 1), 1.5),
    Part.Circle(Vector(-120, 93.73, 0), Vector(0, 0, 1), 1.5),
    Part.Circle(Vector(114, -35.02, 0), Vector(0, 0, 1), 1.5),
    Part.Circle(Vector(-90, 93.73, 0), Vector(0, 0, 1), 1.5),
    Part.Circle(Vector(-50, 93.73, 0), Vector(0, 0, 1), 1.5),
    Part.Circle(Vector(-20, 93.73, 0), Vector(0, 0, 1), 1.5),
    Part.Circle(Vector(162, 18.29, 0), Vector(0, 0, 1), 1.5),
    Part.Circle(Vector(162, 54.585, 0), Vector(0, 0, 1), 1.5),
    Part.Circle(Vector(20, 93.73, 0), Vector(0, 0, 1), 1.5),
    Part.Circle(Vector(50, 93.73, 0), Vector(0, 0, 1), 1.5),
    Part.Circle(Vector(90, 93.73, 0), Vector(0, 0, 1), 1.5),
    Part.Circle(Vector(120, 93.73, 0), Vector(0, 0, 1), 1.5),
], False)
sketch3.addConstraint([
    Sketcher.Constraint("Equal", 0, 1),
    Sketcher.Constraint("Equal", 1, 2),
    Sketcher.Constraint("Equal", 2, 3),
    Sketcher.Constraint("Equal", 3, 4),
    Sketcher.Constraint("Equal", 4, 5),
    Sketcher.Constraint("Equal", 5, 6),
    Sketcher.Constraint("Equal", 6, 7),
    Sketcher.Constraint("Equal", 7, 8),
    Sketcher.Constraint("Equal", 8, 9),
    Sketcher.Constraint("Equal", 9, 10),
    Sketcher.Constraint("Equal", 10, 11),
    Sketcher.Constraint("Equal", 11, 12),
    Sketcher.Constraint("Equal", 12, 13),
    Sketcher.Constraint("Equal", 13, 14),
    Sketcher.Constraint("Equal", 14, 15),
    Sketcher.Constraint("Equal", 15, 16),
    Sketcher.Constraint("Equal", 16, 17),
    Sketcher.Constraint("Equal", 17, 18),
    Sketcher.Constraint("Equal", 18, 19),
    Sketcher.Constraint("Symmetric", 5, 3, 6, 3, -2),
    Sketcher.Constraint("Symmetric", 3, 3, 7, 3, -2),
    Sketcher.Constraint("Symmetric", 2, 3, 8, 3, -2),
    Sketcher.Constraint("Symmetric", 0, 3, 10, 3, -2),
    Sketcher.Constraint("Symmetric", 13, 3, 16, 3, -2),
    Sketcher.Constraint("Symmetric", 12, 3, 17, 3, -2),
    Sketcher.Constraint("Symmetric", 11, 3, 18, 3, -2),
    Sketcher.Constraint("Symmetric", 9, 3, 19, 3, -2),
    Sketcher.Constraint("Horizontal", 0, 3, 2, 3),
    Sketcher.Constraint("Horizontal", 2, 3, 3, 3),
    Sketcher.Constraint("Horizontal", 3, 3, 5, 3),
    Sketcher.Constraint("Horizontal", 9, 3, 11, 3),
    Sketcher.Constraint("Horizontal", 11, 3, 12, 3),
    Sketcher.Constraint("Horizontal", 12, 3, 13, 3),
    Sketcher.Constraint("Vertical", 1, 3, 4, 3),
    Sketcher.Constraint("Vertical", 14, 3, 15, 3),
    Sketcher.Constraint("Diameter", 0, Q("3 mm")),
    Sketcher.Constraint("DistanceX", 0, 3, -1, 1, Q("114 mm")),
    Sketcher.Constraint("DistanceX", 1, 3, -1, 1, Q("162 mm")),
    Sketcher.Constraint("DistanceX", 2, 3, -1, 1, Q("84 mm")),
    Sketcher.Constraint("DistanceX", 3, 3, -1, 1, Q("39 mm")),
    Sketcher.Constraint("DistanceX", 5, 3, -1, 1, Q("9 mm")),
    Sketcher.Constraint("DistanceX", 9, 3, -1, 1, Q("120 mm")),
    Sketcher.Constraint("DistanceX", 11, 3, -1, 1, Q("90 mm")),
    Sketcher.Constraint("DistanceX", 12, 3, -1, 1, Q("50 mm")),
    Sketcher.Constraint("DistanceX", 13, 3, -1, 1, Q("20 mm")),
    Sketcher.Constraint("DistanceX", -1, 1, 14, 3, Q("162 mm")),
    Sketcher.Constraint("DistanceY", 0, 3, -1, 1, Q("35.02 mm")),
    Sketcher.Constraint("DistanceY", 4, 3, -1, 1, Q("6.46 mm")),
    Sketcher.Constraint("DistanceY", -1, 1, 9, 3, Q("93.73 mm")),
    Sketcher.Constraint("DistanceY", -1, 1, 14, 3, Q("18.29 mm")),
    Sketcher.Constraint("DistanceY", -1, 1, 15, 3, Q("54.585 mm")),
    Sketcher.Constraint("DistanceY", -1, 1, 1, 3, Q("73.98259 mm")),
])
pocket2 = doc.addObject("PartDesign::Pocket", "Pocket001")
body.addObject(pocket2)
pocket2.Profile = sketch3
pocket2.Length = 6
pocket2.Reversed = True

sketch4 = doc.addObject("Sketcher::SketchObject", "Sketch003")
body.addObject(sketch4)
sketch4.AttachmentSupport = (doc.XY_Plane, [""])
sketch4.MapMode = "FlatFace"
sketch4.addGeometry([
    Part.LineSegment(Vector(246.329719, -38.02, 0), Vector(246.329719, -174.248985, 0)),
    Part.LineSegment(Vector(246.329719, -174.248985, 0), Vector(-209.715534, -174.248985, 0)),
    Part.LineSegment(Vector(-209.715534, -174.248985, 0), Vector(-209.715534, -38.02, 0)),
    Part.LineSegment(Vector(-209.715534, -38.02, 0), Vector(246.329719, -38.02, 0)),
], False)
sketch4.addConstraint([
    Sketcher.Constraint("Coincident", 0, 2, 1, 1),
    Sketcher.Constraint("Coincident", 1, 2, 2, 1),
    Sketcher.Constraint("Coincident", 2, 2, 3, 1),
    Sketcher.Constraint("Coincident", 3, 2, 0, 1),
    Sketcher.Constraint("Vertical", 0),
    Sketcher.Constraint("Horizontal", 1),
    Sketcher.Constraint("Vertical", 2),
    Sketcher.Constraint("Horizontal", 3),
    Sketcher.Constraint("DistanceY", 2, 2, -1, 1, Q("38.02 mm")),
    Sketcher.Constraint("DistanceX", 1, 2, 1, 1, Q("456.045253 mm")),
    Sketcher.Constraint("DistanceY", 0, 2, 0, 1, Q("136.228985 mm")),
    Sketcher.Constraint("DistanceX", -1, 1, 0, 2, Q("246.329719 mm")),
])
pocket3 = doc.addObject("PartDesign::Pocket", "Pocket002")
body.addObject(pocket3)
pocket3.Profile = sketch4
pocket3.Length = 6
pocket3.Reversed = True

sketch5 = doc.addObject("Sketcher::SketchObject", "Sketch004")
body.addObject(sketch5)
sketch5.AttachmentSupport = (doc.XY_Plane, [""])
sketch5.MapMode = "FlatFace"
sketch5.addGeometry([
    Part.LineSegment(Vector(159, 36.73, 0), Vector(159, 28.73, 0)),
    Part.LineSegment(Vector(159, 28.73, 0), Vector(138, 28.73, 0)),
    Part.LineSegment(Vector(138, 28.73, 0), Vector(138, 36.73, 0)),
    Part.LineSegment(Vector(138, 36.73, 0), Vector(159, 36.73, 0)),
], False)
sketch5.addConstraint([
    Sketcher.Constraint("Coincident", 0, 2, 1, 1),
    Sketcher.Constraint("Coincident", 1, 2, 2, 1),
    Sketcher.Constraint("Coincident", 2, 2, 3, 1),
    Sketcher.Constraint("Coincident", 3, 2, 0, 1),
    Sketcher.Constraint("Vertical", 0),
    Sketcher.Constraint("Horizontal", 1),
    Sketcher.Constraint("Vertical", 2),
    Sketcher.Constraint("Horizontal", 3),
    Sketcher.Constraint("DistanceX", 1, 2, 1, 1, Q("21 mm")),
    Sketcher.Constraint("DistanceY", 0, 2, 0, 1, Q("8 mm")),
    Sketcher.Constraint("DistanceX", -1, 1, 0, 2, Q("159 mm")),
    Sketcher.Constraint("DistanceY", -1, 1, 0, 2, Q("28.73 mm")),
])
pocket4 = doc.addObject("PartDesign::Pocket", "Pocket003")
body.addObject(pocket4)
pocket4.Profile = sketch5
pocket4.Length = 10
pocket4.Reversed = True

doc.recompute()
